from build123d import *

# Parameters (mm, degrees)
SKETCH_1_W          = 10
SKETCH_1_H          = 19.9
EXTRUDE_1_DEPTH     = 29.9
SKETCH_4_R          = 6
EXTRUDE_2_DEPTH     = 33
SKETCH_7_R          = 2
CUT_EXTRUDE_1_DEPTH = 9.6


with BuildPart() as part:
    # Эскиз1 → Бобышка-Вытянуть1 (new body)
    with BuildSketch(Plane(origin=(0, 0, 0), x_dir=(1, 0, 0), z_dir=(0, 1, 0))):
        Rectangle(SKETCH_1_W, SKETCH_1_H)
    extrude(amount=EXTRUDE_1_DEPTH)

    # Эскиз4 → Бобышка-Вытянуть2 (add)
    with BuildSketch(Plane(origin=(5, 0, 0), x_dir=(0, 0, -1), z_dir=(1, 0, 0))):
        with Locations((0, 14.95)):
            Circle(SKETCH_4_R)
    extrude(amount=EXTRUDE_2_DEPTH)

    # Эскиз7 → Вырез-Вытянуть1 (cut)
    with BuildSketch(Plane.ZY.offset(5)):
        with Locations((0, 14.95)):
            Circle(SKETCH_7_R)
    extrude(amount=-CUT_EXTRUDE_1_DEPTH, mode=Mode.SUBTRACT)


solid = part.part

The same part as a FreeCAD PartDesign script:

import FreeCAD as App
import Part
import Sketcher
from FreeCAD import Vector

doc = App.newDocument("Part")
body = doc.addObject("PartDesign::Body", "Body")

# Sketch on XZ plane
sketch1 = body.newObject("Sketcher::SketchObject", "Sketch")
sketch1.AttachmentSupport = (doc.getObject("XZ_Plane"), [""])
sketch1.MapMode = "FlatFace"
sketch1.addGeometry([
    Part.LineSegment(Vector(-5, -10, 0), Vector(-5, 10, 0)),
    Part.LineSegment(Vector(-5, 10, 0), Vector(5, 10, 0)),
    Part.LineSegment(Vector(5, 10, 0), Vector(5, -10, 0)),
    Part.LineSegment(Vector(5, -10, 0), Vector(-5, -10, 0)),
], False)
sketch1.addConstraint([
    Sketcher.Constraint("Coincident", 0, 2, 1, 1),
    Sketcher.Constraint("Coincident", 1, 2, 2, 1),
    Sketcher.Constraint("Coincident", 2, 2, 3, 1),
    Sketcher.Constraint("Coincident", 3, 2, 0, 1),
    Sketcher.Constraint("Vertical", 0),
    Sketcher.Constraint("Horizontal", 1),
    Sketcher.Constraint("Vertical", 2),
    Sketcher.Constraint("Horizontal", 3),
    Sketcher.Constraint("Symmetric", 0, 2, 2, 2, -1, 1),
    Sketcher.Constraint("DistanceX", 1, 1, 1, 2, 10.0),
    Sketcher.Constraint("DistanceY", 0, 1, 0, 2, 19.9),
])
pad1 = body.newObject("PartDesign::Pad", "Pad")
pad1.Profile = sketch1
pad1.Length = 29.9
pad1.Reversed = True

# Sketch on YZ plane
sketch2 = body.newObject("Sketcher::SketchObject", "Sketch001")
sketch2.AttachmentSupport = (doc.getObject("YZ_Plane"), [""])
sketch2.MapMode = "FlatFace"
sketch2.AttachmentOffset = App.Placement(Vector(0, 0, 5), App.Rotation())
sketch2.addGeometry(Part.Circle(Vector(15, 0, 0), Vector(0, 0, 1), 6), False)
sketch2.addConstraint([
    Sketcher.Constraint("PointOnObject", 0, 3, -1),
    Sketcher.Constraint("Diameter", 0, 12.0),
    Sketcher.Constraint("DistanceX", -1, 1, 0, 3, 14.95),
])
pad2 = body.newObject("PartDesign::Pad", "Pad001")
pad2.Profile = sketch2
pad2.Length = 33

# Sketch on YZ plane
sketch3 = body.newObject("Sketcher::SketchObject", "Sketch002")
sketch3.AttachmentSupport = (doc.getObject("YZ_Plane"), [""])
sketch3.MapMode = "FlatFace"
sketch3.AttachmentOffset = App.Placement(Vector(0, 0, -5), App.Rotation())
sketch3.addGeometry(Part.Circle(Vector(14.9, 0, 0), Vector(0, 0, 1), 2), False)
sketch3.addConstraint([
    Sketcher.Constraint("PointOnObject", 0, 3, -1),
    Sketcher.Constraint("Diameter", 0, 4.0),
    Sketcher.Constraint("DistanceX", -1, 1, 0, 3, 14.95),
])
pocket1 = body.newObject("PartDesign::Pocket", "Pocket")
pocket1.Profile = sketch3
pocket1.Length = 9.6
pocket1.Reversed = True

doc.recompute()
